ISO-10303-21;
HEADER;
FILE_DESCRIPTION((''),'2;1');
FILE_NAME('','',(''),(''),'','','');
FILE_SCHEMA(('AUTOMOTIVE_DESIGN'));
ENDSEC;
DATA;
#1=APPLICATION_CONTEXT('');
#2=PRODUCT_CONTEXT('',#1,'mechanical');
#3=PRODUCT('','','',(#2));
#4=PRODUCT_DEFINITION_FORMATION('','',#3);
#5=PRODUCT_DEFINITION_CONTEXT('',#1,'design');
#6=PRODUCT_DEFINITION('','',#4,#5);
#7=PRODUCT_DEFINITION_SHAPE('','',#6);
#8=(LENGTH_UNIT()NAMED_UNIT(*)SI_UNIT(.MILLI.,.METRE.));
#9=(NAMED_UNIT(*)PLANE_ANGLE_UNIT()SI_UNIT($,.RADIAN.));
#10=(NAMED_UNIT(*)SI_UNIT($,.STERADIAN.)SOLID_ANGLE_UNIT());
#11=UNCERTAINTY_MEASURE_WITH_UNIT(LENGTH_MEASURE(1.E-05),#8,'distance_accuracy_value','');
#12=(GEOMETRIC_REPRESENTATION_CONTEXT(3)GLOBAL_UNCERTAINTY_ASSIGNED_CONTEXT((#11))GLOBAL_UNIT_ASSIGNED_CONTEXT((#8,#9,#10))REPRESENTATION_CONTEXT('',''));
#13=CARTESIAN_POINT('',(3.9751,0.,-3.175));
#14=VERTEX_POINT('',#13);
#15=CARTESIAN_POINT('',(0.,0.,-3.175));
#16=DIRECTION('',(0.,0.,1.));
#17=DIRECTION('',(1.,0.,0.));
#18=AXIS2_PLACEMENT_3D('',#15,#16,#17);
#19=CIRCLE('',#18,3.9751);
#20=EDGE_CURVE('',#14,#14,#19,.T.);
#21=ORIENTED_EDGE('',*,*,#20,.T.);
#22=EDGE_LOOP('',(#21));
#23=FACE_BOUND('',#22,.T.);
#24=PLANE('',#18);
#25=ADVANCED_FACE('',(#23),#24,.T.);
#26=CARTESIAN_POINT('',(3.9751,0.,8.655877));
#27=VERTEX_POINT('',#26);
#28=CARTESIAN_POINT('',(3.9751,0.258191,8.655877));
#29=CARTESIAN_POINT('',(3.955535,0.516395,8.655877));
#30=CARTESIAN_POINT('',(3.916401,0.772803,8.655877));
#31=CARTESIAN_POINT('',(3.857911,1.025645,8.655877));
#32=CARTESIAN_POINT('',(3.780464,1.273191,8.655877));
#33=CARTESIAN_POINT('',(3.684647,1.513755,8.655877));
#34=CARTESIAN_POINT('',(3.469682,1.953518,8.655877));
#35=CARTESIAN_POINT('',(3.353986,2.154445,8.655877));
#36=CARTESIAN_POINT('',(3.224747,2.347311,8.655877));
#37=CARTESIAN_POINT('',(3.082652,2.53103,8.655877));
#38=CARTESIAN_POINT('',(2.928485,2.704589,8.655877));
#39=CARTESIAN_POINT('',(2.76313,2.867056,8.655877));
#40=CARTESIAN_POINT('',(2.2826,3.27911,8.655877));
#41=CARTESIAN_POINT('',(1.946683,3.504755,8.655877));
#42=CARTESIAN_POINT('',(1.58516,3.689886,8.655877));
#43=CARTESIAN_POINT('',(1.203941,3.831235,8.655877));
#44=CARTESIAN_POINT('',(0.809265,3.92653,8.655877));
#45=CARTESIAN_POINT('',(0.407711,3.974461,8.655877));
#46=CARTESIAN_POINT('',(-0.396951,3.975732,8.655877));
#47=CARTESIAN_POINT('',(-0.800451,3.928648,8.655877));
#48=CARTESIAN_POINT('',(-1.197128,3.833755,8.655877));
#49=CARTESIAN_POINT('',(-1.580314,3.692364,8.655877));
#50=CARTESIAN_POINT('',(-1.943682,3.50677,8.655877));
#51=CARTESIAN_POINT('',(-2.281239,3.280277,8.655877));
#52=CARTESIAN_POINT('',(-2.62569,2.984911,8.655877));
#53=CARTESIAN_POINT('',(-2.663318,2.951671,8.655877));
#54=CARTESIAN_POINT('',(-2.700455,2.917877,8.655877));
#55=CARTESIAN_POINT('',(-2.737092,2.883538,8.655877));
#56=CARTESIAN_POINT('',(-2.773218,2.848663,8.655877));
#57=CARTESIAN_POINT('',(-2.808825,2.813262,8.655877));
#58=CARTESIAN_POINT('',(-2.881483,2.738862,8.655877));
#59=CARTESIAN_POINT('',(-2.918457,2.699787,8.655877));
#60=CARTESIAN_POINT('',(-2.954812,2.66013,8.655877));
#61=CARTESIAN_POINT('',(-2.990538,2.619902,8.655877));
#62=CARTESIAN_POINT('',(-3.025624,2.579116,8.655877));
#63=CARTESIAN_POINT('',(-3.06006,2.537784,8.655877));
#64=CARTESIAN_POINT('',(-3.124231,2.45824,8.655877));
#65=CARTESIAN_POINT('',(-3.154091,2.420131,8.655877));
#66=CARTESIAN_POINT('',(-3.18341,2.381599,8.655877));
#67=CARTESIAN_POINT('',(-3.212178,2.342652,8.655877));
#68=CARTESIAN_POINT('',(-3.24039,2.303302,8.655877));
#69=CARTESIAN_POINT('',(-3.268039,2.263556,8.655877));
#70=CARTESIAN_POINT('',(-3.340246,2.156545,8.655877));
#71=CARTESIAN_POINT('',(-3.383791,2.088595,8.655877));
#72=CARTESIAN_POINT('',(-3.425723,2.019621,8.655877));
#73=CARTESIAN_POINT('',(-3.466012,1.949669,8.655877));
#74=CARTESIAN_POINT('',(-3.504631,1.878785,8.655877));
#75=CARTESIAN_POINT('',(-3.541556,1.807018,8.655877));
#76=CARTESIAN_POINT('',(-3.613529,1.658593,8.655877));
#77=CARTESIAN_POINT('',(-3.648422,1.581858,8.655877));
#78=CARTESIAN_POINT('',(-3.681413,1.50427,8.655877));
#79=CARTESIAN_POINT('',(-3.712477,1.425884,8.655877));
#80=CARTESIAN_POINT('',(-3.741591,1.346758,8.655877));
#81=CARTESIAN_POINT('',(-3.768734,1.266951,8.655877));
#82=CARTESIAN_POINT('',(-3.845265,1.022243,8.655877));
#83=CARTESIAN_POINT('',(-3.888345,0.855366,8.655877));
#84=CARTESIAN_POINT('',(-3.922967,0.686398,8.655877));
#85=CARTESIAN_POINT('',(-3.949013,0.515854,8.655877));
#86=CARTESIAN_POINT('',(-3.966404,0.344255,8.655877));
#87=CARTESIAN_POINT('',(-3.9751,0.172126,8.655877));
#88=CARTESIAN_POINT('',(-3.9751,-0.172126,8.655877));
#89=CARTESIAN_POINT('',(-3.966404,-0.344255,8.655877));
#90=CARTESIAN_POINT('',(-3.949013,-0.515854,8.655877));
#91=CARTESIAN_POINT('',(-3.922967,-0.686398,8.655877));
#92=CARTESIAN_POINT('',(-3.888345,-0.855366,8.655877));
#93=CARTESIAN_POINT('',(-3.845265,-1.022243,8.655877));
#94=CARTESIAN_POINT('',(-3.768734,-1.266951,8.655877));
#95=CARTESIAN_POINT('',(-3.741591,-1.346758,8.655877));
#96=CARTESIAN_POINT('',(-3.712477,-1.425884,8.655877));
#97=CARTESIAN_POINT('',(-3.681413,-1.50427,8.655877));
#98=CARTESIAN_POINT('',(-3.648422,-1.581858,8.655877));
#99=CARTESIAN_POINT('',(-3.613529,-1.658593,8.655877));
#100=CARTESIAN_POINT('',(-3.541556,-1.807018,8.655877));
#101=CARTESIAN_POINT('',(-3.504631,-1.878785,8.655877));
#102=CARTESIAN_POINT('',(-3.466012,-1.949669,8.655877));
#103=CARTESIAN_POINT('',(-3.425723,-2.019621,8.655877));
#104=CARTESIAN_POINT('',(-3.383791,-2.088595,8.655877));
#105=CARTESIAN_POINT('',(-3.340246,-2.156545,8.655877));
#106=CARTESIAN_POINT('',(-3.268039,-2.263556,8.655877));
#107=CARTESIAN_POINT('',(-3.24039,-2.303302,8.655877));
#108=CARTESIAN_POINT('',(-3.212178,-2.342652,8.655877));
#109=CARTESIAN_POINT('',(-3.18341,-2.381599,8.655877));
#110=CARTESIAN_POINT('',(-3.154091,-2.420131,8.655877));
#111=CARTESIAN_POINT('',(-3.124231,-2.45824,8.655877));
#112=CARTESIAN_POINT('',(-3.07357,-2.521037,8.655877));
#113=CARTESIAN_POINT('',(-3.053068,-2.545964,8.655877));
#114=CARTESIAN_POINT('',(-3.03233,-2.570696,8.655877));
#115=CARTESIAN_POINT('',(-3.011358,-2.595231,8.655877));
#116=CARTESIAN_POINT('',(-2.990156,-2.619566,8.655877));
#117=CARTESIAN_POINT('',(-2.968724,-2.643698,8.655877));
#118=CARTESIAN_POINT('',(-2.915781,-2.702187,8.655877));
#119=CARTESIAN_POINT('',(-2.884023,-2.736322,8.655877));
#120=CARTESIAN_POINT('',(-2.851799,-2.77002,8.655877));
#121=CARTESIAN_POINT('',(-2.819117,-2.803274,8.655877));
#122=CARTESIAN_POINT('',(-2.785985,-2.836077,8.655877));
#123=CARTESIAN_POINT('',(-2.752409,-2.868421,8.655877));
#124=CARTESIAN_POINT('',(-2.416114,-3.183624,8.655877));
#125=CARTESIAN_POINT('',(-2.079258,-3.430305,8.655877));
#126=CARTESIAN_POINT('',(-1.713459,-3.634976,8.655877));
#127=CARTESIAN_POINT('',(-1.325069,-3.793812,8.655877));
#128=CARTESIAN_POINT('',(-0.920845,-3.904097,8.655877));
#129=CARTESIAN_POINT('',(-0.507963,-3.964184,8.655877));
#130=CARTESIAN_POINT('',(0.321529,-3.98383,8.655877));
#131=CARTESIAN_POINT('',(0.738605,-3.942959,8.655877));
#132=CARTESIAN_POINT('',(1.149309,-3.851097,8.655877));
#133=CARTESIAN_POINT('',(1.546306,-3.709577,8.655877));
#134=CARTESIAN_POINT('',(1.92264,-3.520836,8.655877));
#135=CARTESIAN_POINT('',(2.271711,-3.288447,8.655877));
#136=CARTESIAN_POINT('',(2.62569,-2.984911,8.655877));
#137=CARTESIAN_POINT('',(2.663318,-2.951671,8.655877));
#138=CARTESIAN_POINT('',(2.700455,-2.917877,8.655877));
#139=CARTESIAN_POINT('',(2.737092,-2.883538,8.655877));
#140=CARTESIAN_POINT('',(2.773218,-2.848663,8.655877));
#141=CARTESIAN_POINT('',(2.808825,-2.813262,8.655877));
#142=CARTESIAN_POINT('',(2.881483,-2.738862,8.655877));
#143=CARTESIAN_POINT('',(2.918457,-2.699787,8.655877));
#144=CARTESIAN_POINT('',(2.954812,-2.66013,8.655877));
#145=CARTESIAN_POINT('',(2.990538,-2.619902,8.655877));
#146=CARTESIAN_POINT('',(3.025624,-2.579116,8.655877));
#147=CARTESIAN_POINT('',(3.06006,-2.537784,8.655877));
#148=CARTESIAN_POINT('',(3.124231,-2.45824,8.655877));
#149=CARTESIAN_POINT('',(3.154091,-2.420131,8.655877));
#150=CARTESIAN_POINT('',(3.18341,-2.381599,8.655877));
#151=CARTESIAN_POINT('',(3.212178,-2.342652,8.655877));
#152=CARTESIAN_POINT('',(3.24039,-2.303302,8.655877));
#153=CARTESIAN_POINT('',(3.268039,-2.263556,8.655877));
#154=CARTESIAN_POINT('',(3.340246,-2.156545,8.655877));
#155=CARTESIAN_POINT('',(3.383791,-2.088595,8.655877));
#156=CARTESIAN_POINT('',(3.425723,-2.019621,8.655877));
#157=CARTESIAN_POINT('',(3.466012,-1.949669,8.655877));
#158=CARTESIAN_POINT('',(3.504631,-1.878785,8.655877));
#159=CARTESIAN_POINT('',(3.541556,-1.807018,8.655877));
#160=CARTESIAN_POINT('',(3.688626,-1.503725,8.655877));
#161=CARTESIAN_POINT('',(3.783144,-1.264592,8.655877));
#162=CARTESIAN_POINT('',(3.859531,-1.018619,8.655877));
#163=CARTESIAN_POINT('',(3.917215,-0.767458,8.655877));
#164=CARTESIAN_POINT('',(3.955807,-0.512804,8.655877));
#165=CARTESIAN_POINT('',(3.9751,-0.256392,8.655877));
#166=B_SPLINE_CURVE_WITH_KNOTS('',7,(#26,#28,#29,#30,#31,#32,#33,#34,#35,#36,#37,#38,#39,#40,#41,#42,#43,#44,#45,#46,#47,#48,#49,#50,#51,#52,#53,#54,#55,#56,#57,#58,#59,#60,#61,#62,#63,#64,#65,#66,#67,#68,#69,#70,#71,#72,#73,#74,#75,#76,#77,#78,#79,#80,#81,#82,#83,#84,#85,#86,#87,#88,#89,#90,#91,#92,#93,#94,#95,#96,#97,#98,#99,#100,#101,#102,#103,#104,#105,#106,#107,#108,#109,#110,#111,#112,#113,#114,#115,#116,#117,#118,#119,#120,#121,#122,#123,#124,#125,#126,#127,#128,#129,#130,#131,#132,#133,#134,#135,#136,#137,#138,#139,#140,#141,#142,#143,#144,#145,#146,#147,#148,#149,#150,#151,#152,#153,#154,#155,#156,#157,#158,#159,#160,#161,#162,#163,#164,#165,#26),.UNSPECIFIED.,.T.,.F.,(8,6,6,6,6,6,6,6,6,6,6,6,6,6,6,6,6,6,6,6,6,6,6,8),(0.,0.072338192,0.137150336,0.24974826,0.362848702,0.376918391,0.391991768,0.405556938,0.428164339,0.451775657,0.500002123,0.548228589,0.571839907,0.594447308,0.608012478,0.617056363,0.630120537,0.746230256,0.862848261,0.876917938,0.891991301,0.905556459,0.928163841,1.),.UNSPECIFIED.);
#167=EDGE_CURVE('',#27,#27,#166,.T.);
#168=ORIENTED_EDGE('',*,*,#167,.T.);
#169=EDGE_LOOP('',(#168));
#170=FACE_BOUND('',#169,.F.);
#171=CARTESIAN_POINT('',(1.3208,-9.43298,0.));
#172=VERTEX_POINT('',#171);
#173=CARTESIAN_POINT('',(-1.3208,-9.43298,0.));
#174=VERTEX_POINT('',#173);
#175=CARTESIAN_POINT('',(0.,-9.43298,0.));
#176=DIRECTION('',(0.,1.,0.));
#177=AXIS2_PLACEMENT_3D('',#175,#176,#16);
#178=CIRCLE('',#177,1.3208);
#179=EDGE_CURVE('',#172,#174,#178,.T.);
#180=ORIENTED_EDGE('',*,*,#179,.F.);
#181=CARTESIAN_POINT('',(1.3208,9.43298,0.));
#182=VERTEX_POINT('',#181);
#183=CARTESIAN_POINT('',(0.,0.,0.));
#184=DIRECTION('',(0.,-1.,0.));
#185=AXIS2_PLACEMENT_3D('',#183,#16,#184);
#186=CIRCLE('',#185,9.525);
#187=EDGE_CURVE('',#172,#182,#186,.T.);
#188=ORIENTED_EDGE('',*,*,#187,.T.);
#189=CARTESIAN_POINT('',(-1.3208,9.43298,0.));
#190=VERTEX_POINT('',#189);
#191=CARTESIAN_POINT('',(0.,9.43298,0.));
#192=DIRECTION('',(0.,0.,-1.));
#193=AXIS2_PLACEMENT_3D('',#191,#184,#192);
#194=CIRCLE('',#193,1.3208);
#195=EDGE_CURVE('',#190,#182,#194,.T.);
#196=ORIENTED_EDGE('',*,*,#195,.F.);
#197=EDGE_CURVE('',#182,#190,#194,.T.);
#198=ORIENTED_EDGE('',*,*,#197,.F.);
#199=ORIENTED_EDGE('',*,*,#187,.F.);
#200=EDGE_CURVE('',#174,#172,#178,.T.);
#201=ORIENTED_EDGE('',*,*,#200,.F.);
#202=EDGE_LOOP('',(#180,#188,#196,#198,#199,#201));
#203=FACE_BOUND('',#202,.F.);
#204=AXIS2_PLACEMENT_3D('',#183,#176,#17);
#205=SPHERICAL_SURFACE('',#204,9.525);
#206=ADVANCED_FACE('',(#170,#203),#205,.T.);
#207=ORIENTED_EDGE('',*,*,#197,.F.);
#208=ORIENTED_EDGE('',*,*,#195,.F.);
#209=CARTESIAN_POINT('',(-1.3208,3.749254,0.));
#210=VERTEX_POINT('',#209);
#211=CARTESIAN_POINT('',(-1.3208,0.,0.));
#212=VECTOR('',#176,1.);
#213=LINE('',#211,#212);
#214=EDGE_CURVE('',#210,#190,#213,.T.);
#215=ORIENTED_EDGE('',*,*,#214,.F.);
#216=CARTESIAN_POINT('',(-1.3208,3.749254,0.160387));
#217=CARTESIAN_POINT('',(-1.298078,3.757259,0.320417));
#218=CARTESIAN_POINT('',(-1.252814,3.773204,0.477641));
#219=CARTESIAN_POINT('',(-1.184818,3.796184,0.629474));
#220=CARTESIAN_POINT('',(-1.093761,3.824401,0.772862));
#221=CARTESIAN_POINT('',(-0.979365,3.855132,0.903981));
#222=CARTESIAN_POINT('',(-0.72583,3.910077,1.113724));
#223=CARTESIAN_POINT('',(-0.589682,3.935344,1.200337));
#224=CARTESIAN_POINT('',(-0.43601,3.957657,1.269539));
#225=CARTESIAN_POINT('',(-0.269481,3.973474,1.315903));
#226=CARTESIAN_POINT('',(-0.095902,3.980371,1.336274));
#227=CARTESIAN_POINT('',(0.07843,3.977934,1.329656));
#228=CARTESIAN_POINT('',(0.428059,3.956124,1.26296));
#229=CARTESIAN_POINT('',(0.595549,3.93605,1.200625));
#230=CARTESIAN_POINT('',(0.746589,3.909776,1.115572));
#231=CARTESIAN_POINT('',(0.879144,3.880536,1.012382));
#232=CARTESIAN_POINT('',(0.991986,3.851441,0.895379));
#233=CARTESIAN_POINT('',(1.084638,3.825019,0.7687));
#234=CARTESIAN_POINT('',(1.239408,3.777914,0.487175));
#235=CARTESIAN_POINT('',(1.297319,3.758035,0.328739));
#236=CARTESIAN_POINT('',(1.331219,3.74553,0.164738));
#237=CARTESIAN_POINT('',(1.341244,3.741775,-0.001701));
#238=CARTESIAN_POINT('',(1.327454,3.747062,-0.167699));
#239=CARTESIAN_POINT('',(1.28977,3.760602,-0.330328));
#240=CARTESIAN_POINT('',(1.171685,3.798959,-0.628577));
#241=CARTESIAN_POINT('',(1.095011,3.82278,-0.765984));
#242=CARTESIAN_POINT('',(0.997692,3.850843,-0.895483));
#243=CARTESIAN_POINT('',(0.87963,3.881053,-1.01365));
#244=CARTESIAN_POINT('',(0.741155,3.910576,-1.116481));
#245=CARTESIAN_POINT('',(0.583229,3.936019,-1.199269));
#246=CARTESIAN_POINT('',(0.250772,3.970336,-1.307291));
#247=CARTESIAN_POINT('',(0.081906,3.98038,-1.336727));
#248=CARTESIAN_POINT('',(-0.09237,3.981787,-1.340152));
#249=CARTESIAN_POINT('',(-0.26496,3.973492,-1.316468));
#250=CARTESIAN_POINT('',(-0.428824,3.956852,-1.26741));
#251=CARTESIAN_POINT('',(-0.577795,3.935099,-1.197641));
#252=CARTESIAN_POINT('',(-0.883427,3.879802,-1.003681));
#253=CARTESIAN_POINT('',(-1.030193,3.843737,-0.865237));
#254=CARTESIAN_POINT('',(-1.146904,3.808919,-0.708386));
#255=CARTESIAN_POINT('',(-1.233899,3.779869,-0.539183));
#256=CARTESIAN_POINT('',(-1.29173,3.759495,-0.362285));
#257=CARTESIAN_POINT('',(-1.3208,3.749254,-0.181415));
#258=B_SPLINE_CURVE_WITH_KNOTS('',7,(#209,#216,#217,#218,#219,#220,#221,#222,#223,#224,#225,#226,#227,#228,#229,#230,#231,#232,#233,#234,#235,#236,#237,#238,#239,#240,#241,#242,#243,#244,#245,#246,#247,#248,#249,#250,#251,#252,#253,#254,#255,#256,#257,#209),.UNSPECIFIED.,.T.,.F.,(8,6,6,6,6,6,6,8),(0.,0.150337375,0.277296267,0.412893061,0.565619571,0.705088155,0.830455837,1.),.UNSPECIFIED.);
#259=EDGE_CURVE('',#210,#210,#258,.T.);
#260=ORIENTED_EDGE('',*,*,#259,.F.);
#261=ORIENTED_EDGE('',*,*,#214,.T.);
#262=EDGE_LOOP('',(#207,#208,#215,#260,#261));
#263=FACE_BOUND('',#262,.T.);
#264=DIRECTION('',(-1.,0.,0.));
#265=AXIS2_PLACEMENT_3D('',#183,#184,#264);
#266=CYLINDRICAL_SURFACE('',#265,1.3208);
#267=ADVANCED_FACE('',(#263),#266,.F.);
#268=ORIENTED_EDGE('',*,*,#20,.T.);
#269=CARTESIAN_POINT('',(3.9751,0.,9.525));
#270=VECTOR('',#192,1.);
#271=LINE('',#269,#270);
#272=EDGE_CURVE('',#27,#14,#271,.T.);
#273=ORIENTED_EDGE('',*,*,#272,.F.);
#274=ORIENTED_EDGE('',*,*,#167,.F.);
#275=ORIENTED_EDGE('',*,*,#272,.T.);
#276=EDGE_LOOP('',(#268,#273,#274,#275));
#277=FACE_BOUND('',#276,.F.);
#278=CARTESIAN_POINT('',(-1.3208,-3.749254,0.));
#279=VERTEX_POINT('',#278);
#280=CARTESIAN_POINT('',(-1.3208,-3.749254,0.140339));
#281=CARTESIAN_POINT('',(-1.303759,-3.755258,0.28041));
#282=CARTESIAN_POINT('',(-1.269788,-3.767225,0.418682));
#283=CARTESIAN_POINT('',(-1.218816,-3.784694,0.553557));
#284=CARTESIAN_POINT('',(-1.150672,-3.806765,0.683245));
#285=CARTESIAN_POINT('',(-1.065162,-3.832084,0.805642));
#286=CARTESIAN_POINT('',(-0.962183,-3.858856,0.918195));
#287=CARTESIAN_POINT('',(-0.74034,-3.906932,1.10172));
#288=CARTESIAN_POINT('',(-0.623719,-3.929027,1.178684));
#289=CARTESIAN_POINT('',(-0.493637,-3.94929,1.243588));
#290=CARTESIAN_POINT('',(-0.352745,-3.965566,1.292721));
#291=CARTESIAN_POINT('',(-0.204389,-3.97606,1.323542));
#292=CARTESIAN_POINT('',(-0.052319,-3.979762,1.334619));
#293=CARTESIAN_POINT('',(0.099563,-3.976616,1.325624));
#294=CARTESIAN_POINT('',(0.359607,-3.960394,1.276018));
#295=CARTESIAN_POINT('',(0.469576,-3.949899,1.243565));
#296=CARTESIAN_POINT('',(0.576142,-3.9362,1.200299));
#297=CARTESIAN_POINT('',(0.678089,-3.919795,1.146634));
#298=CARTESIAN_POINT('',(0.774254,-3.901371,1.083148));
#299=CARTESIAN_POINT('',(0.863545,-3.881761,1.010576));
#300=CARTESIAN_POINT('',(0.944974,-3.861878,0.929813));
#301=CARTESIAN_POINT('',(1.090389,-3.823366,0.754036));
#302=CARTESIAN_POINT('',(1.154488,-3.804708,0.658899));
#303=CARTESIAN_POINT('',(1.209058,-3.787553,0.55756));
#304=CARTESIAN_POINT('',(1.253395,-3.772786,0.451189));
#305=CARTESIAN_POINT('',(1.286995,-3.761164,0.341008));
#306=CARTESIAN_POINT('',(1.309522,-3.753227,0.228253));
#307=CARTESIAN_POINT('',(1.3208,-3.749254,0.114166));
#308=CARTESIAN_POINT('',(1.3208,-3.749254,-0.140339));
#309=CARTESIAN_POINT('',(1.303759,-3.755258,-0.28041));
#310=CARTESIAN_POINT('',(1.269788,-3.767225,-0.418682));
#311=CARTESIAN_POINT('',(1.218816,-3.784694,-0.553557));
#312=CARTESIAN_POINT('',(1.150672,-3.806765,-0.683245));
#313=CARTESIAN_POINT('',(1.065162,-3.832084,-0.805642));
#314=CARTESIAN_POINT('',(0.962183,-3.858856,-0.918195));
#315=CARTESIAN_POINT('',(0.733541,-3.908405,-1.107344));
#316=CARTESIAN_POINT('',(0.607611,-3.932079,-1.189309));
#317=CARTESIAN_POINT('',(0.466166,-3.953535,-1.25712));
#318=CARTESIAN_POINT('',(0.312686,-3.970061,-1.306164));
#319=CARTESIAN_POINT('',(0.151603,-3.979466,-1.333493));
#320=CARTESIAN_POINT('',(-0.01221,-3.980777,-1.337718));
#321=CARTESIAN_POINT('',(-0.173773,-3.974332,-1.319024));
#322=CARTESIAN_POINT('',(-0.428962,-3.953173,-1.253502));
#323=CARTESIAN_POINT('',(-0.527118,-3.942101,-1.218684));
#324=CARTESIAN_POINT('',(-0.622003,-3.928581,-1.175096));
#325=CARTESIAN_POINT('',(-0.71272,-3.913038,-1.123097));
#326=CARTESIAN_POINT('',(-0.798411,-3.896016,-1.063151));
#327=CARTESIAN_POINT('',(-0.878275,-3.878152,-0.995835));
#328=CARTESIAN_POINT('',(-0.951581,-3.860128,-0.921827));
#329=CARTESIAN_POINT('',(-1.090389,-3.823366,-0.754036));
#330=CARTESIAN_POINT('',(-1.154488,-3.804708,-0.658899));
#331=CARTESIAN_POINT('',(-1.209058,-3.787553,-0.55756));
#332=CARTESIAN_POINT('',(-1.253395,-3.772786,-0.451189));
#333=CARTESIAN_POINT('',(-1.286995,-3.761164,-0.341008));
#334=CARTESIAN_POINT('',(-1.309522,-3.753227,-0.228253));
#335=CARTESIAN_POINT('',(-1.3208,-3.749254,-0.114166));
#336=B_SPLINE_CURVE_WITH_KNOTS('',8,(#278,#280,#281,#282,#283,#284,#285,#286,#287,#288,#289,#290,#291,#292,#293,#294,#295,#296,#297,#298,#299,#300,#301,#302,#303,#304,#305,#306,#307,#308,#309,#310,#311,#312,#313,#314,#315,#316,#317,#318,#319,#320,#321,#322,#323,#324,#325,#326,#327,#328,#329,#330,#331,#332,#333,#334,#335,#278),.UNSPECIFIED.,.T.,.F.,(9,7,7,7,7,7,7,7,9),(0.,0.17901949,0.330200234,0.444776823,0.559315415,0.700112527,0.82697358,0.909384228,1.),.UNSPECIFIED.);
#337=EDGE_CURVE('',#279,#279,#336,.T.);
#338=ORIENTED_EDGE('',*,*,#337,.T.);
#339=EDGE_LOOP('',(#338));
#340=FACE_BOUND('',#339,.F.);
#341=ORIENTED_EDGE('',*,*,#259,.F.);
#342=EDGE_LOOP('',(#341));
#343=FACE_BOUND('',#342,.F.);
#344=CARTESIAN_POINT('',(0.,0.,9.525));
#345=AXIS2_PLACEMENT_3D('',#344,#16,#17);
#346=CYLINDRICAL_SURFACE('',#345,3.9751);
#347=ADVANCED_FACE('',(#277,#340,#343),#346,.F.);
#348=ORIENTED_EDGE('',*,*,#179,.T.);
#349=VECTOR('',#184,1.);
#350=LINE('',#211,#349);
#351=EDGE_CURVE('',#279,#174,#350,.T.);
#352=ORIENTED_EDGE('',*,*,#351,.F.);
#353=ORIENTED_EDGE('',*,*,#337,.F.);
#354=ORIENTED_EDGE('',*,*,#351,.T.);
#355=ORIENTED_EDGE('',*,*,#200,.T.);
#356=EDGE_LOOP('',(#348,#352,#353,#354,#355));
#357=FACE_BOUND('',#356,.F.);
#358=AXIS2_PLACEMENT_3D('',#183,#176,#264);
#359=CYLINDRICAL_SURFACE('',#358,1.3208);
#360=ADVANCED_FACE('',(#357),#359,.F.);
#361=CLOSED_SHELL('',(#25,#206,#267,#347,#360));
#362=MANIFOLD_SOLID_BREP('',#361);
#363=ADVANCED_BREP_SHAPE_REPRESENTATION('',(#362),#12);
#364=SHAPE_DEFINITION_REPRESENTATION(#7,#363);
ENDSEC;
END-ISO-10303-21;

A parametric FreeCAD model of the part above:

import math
import FreeCAD as App
import Part
import Sketcher
from FreeCAD import Vector
Q = App.Units.Quantity

doc = App.newDocument("Part")
body = doc.addObject("PartDesign::Body", "Body")

# Sketch on XY plane
sketch1 = body.newObject("Sketcher::SketchObject", "Sketch")
sketch1.AttachmentSupport = (doc.getObject("XY_Plane"), [""])
sketch1.MapMode = "FlatFace"
sketch1.addGeometry(Part.ArcOfCircle(Part.Circle(Vector(0, 0, 0), Vector(0, 0, 1), 10), math.radians(-90), math.radians(90)), False)
sketch1.addGeometry(Part.LineSegment(Vector(0, 10, 0), Vector(0, -10, 0)), False)
sketch1.addConstraint(Sketcher.Constraint("Coincident", 0, 1, 1, 2))
sketch1.addConstraint(Sketcher.Constraint("Coincident", 1, 1, 0, 2))
sketch1.addConstraint(Sketcher.Constraint("Vertical", 1))
sketch1.addConstraint(Sketcher.Constraint("Coincident", 0, 3, -1, 1))
sketch1.addConstraint(Sketcher.Constraint("PointOnObject", 0, 1, -2))
sketch1.addConstraint(Sketcher.Constraint("Radius", 0, Q("0.375 in")))
revolution = body.newObject("PartDesign::Revolution", "Revolution")
revolution.Profile = sketch1
revolution.ReferenceAxis = (sketch1, ["V_Axis"])
revolution.Angle = 360

# Sketch on XY plane
sketch2 = body.newObject("Sketcher::SketchObject", "Sketch001")
sketch2.AttachmentSupport = (doc.getObject("XY_Plane"), [""])
sketch2.MapMode = "FlatFace"
sketch2.AttachmentOffset = App.Placement(Vector(0, 0, 0.375 * 25.4), App.Rotation())
sketch2.addGeometry(Part.Circle(Vector(0, 0, 0), Vector(0, 0, 1), 4), False)
sketch2.addConstraint(Sketcher.Constraint("Coincident", 0, 3, -1, 1))
sketch2.addConstraint(Sketcher.Constraint("Diameter", 0, Q("0.313 in")))
pocket1 = body.newObject("PartDesign::Pocket", "Pocket")
pocket1.Profile = sketch2
pocket1.Length = Q("0.5 in")

# Sketch on XZ plane
sketch3 = body.newObject("Sketcher::SketchObject", "Sketch002")
sketch3.AttachmentSupport = (doc.getObject("XZ_Plane"), [""])
sketch3.MapMode = "FlatFace"
sketch3.addGeometry(Part.Circle(Vector(0, 0, 0), Vector(0, 0, 1), 1.3), False)
sketch3.addConstraint(Sketcher.Constraint("Coincident", 0, 3, -1, 1))
sketch3.addConstraint(Sketcher.Constraint("Diameter", 0, Q("0.104 in")))
pocket2 = body.newObject("PartDesign::Pocket", "Pocket001")
pocket2.Profile = sketch3
pocket2.Type = "ThroughAll"
pocket2.Midplane = True

doc.recompute()
